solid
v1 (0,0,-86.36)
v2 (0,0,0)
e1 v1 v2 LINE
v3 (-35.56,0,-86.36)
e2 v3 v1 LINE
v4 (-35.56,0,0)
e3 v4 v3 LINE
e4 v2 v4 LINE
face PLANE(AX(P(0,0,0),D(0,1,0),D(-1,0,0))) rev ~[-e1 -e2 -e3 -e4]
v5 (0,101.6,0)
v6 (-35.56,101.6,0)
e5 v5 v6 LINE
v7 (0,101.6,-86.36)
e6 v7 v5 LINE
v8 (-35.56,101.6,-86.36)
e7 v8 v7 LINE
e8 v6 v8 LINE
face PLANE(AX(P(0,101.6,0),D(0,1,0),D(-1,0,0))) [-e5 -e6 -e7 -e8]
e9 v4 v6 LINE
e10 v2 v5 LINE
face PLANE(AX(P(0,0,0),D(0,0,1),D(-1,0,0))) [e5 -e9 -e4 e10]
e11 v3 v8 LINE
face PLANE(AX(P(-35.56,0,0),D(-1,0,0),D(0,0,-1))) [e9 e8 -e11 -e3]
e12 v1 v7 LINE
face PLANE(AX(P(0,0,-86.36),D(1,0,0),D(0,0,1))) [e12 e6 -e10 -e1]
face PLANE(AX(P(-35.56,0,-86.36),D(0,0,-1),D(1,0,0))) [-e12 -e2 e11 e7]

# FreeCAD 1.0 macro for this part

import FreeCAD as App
import Part
import Sketcher
from FreeCAD import Vector
Q = App.Units.Quantity


def add_polygon(sketch, points):
    """Adds a closed chain of lines whose ends are joined by coincident constraints."""
    first, n = sketch.GeometryCount, len(points)
    for a, b in zip(points, points[1:] + points[:1]):
        sketch.addGeometry(Part.LineSegment(App.Vector(*a, 0), App.Vector(*b, 0)), False)
    for i in range(n):
        sketch.addConstraint(Sketcher.Constraint("Coincident", first + i, 2, first + (i + 1) % n, 1))

doc = App.newDocument("Part")
body = doc.addObject("PartDesign::Body", "Body")

sketch1 = body.newObject("Sketcher::SketchObject", "Sketch")
sketch1.AttachmentSupport = (doc.getObject("XZ_Plane"), [""])
sketch1.MapMode = "FlatFace"
add_polygon(sketch1, [(-36, 0), (0, 0), (0, -86), (-36, -86)])
sketch1.addConstraint([
    Sketcher.Constraint("Horizontal", 0),
    Sketcher.Constraint("Vertical", 1),
    Sketcher.Constraint("Horizontal", 2),
    Sketcher.Constraint("Vertical", 3),
    Sketcher.Constraint("Coincident", 0, 2, -1, 1),
    Sketcher.Constraint("DistanceX", 0, 1, 0, 2, Q("1.4 in")),
    Sketcher.Constraint("DistanceY", 1, 2, 1, 1, Q("3.4 in")),
])
pad1 = body.newObject("PartDesign::Pad", "Pad")
pad1.Profile = sketch1
pad1.Length = Q("4 in")
pad1.Reversed = True

doc.recompute()
